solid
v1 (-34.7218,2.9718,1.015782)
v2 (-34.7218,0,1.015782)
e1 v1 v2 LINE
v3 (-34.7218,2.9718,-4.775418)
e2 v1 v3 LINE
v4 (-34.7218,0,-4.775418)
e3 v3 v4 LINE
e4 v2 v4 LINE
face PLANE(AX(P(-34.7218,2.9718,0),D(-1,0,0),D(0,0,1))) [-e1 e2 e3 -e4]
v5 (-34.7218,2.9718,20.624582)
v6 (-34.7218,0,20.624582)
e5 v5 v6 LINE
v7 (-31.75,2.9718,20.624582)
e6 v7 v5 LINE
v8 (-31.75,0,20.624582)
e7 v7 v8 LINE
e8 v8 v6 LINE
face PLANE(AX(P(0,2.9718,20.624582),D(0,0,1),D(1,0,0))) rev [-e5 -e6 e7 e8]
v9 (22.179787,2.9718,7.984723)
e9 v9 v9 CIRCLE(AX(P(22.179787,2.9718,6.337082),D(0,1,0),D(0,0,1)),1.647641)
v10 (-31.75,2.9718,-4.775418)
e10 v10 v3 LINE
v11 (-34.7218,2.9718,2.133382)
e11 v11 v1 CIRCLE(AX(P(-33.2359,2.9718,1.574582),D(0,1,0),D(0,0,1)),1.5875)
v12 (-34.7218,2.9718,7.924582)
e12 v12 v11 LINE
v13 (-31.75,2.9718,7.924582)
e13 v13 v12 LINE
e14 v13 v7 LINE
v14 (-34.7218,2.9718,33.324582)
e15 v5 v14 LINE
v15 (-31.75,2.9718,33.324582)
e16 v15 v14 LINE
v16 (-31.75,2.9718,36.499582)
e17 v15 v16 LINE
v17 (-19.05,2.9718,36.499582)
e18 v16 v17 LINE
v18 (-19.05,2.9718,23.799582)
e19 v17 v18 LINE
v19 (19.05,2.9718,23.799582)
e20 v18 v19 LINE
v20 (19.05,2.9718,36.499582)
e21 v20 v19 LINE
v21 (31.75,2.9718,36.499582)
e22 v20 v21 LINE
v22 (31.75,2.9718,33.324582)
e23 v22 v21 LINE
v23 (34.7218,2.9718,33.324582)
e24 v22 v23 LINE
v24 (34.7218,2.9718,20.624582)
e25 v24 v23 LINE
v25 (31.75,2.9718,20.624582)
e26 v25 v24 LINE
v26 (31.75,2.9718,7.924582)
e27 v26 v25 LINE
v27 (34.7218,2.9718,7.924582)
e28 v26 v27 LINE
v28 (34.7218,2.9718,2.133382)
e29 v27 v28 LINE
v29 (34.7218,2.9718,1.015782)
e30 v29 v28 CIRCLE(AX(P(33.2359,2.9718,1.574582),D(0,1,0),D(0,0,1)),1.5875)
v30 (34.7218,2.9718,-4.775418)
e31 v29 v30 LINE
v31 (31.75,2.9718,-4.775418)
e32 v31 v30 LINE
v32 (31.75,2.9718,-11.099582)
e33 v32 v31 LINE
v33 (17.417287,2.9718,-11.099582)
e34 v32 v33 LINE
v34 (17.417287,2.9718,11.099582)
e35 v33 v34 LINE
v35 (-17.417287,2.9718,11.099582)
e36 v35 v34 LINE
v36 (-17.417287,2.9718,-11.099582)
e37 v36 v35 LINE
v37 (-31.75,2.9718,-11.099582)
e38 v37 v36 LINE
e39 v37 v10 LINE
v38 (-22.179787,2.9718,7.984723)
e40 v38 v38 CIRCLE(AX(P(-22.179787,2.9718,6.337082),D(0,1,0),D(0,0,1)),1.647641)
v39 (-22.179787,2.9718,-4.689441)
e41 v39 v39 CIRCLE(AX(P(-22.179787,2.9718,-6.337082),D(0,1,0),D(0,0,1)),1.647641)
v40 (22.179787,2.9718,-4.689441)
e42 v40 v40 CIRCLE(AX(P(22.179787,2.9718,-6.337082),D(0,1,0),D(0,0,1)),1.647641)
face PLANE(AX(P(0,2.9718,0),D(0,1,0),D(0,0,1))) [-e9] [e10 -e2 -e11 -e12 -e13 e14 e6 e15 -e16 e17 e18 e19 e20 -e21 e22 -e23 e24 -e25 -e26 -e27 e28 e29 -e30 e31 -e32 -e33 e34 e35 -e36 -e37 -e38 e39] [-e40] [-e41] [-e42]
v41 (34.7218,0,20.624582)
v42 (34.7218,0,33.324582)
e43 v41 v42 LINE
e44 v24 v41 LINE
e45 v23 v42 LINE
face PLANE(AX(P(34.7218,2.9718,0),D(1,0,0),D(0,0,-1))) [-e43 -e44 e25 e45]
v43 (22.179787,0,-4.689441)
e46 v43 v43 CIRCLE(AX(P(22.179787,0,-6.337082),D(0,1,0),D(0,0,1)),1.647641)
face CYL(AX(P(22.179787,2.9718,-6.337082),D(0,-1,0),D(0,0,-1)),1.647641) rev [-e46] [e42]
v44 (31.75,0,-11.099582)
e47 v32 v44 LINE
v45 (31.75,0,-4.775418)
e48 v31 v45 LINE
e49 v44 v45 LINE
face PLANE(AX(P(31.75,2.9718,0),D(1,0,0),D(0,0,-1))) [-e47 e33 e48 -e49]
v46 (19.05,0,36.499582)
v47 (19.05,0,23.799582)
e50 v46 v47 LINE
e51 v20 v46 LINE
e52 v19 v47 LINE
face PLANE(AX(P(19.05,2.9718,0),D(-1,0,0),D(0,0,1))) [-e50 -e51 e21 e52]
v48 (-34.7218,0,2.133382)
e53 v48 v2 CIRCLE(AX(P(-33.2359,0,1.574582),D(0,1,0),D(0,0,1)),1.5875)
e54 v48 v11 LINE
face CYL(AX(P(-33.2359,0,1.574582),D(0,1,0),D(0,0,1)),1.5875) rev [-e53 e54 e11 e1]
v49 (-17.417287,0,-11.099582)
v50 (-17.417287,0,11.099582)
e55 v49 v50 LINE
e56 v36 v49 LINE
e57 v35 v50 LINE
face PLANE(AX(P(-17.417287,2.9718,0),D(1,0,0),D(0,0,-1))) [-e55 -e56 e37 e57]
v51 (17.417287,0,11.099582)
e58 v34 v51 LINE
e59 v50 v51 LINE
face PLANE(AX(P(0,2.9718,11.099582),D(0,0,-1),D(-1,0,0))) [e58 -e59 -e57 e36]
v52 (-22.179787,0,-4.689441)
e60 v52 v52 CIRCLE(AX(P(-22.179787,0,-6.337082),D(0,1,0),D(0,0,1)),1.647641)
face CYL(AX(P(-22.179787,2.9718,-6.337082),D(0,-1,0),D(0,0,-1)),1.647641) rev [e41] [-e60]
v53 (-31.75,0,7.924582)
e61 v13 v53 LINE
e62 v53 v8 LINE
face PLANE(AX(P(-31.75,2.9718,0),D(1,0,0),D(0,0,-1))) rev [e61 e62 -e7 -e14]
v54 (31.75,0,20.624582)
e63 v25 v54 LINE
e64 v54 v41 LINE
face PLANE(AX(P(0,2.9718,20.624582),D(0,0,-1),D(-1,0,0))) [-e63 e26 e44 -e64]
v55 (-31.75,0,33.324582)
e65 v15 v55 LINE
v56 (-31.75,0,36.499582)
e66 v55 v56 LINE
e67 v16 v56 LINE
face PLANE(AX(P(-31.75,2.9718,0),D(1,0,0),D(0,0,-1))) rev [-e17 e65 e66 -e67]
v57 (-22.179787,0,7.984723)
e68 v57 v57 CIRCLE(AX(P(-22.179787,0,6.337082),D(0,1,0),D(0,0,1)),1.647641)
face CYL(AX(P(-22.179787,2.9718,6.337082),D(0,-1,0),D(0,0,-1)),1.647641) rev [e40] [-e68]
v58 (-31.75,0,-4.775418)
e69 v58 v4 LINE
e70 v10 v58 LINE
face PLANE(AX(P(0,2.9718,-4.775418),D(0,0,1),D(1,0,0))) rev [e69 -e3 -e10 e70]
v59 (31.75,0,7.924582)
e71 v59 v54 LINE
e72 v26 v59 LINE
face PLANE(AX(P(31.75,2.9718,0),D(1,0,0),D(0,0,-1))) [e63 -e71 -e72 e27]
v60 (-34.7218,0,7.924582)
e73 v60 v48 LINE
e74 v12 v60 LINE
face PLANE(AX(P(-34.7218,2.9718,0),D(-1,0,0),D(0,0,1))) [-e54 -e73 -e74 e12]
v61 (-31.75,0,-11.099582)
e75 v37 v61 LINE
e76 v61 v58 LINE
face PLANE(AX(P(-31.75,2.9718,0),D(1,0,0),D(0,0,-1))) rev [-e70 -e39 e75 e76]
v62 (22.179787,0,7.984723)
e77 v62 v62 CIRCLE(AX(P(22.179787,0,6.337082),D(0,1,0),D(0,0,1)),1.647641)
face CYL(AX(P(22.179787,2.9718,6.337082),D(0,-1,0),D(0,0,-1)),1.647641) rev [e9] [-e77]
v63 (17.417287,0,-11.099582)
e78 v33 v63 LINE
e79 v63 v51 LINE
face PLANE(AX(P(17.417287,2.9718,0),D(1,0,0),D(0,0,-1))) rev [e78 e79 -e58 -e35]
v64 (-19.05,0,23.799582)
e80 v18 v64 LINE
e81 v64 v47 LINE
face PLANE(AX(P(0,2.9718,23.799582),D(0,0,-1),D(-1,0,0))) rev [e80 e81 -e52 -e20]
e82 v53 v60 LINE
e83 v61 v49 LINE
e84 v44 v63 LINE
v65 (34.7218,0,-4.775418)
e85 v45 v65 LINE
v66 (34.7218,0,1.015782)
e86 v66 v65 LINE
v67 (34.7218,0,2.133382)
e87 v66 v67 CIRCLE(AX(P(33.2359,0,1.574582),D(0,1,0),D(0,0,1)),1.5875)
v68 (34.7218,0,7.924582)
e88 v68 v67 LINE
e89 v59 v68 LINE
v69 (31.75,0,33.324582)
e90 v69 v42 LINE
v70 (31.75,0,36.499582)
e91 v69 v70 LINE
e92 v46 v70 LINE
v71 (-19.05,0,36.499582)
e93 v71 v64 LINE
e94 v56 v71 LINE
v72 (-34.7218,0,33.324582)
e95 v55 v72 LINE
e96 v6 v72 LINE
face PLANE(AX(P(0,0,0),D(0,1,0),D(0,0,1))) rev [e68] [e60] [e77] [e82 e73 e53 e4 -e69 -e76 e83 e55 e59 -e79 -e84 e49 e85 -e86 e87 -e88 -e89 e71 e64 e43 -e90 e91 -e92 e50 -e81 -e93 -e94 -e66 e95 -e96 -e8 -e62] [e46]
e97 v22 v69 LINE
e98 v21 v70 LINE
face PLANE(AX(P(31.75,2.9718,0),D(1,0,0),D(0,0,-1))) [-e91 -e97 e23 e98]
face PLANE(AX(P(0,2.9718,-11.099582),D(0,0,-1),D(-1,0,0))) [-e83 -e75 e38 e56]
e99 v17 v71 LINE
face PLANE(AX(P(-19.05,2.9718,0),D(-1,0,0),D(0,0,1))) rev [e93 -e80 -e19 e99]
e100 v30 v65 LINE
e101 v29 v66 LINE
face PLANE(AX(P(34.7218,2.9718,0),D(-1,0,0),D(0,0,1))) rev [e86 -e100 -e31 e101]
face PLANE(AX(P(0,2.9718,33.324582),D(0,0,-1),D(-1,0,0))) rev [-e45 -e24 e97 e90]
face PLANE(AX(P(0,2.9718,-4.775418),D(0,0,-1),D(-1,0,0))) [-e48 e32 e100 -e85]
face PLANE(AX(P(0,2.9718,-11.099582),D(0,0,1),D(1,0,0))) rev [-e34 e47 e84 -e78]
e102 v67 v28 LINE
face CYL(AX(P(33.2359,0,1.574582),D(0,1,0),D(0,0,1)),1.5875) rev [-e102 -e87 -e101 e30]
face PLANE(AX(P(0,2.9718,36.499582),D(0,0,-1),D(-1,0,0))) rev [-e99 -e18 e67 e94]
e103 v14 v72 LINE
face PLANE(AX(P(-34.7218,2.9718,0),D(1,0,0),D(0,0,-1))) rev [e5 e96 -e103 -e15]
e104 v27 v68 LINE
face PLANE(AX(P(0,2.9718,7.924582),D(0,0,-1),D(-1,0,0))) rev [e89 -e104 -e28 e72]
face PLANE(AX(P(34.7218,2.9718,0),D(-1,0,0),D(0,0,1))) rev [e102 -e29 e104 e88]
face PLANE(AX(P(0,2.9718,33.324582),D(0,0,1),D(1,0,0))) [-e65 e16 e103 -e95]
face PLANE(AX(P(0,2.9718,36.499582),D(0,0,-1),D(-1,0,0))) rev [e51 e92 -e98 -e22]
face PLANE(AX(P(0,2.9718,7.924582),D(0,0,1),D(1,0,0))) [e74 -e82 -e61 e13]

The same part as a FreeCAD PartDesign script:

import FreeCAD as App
import Part
import Sketcher
from FreeCAD import Vector
Q = App.Units.Quantity


def add_polygon(sketch, points):
    """Adds a closed chain of lines whose ends are joined by coincident constraints."""
    first, n = sketch.GeometryCount, len(points)
    for a, b in zip(points, points[1:] + points[:1]):
        sketch.addGeometry(Part.LineSegment(App.Vector(*a, 0), App.Vector(*b, 0)), False)
    for i in range(n):
        sketch.addConstraint(Sketcher.Constraint("Coincident", first + i, 2, first + (i + 1) % n, 1))

doc = App.newDocument("Part")
body = doc.addObject("PartDesign::Body", "Body")

sketch1 = body.newObject("Sketcher::SketchObject", "Sketch")
sketch1.AttachmentSupport = (doc.getObject("XZ_Plane"), [""])
sketch1.MapMode = "FlatFace"
add_polygon(sketch1, [(-17.4, -11.1), (-31.8, -11.1), (-31.8, -4.8), (-34.7, -4.8), (-34.7, 7.9), (-31.8, 7.9), (-31.8, 20.6), (-34.7, 20.6), (-34.7, 33.3), (-31.8, 33.3), (-31.8, 36.5), (-19.1, 36.5), (-19.1, 23.8), (19.1, 23.8), (19.1, 36.5), (31.8, 36.5), (31.8, 33.3), (34.7, 33.3), (34.7, 20.6), (31.8, 20.6), (31.8, 7.9), (34.7, 7.9), (34.7, -4.8), (31.8, -4.8), (31.8, -11.1), (17.4, -11.1), (17.4, 11.1), (-17.4, 11.1)])
sketch1.addGeometry(Part.Circle(Vector(-22.2, 6.3, 0), Vector(0, 0, 1), 1.6), False)
sketch1.addGeometry(Part.Circle(Vector(22.2, 6.3, 0), Vector(0, 0, 1), 1.6), False)
sketch1.addGeometry(Part.Circle(Vector(-22.2, -6.3, 0), Vector(0, 0, 1), 1.6), False)
sketch1.addGeometry(Part.Circle(Vector(22.2, -6.3, 0), Vector(0, 0, 1), 1.6), False)
sketch1.addConstraint([
    Sketcher.Constraint("Horizontal", 0),
    Sketcher.Constraint("Vertical", 1),
    Sketcher.Constraint("Horizontal", 2),
    Sketcher.Constraint("Vertical", 3),
    Sketcher.Constraint("Horizontal", 4),
    Sketcher.Constraint("Vertical", 5),
    Sketcher.Constraint("Horizontal", 6),
    Sketcher.Constraint("Vertical", 7),
    Sketcher.Constraint("Horizontal", 8),
    Sketcher.Constraint("Vertical", 9),
    Sketcher.Constraint("Horizontal", 10),
    Sketcher.Constraint("Vertical", 11),
    Sketcher.Constraint("Horizontal", 12),
    Sketcher.Constraint("Vertical", 13),
    Sketcher.Constraint("Horizontal", 14),
    Sketcher.Constraint("Vertical", 15),
    Sketcher.Constraint("Horizontal", 16),
    Sketcher.Constraint("Vertical", 17),
    Sketcher.Constraint("Horizontal", 18),
    Sketcher.Constraint("Vertical", 19),
    Sketcher.Constraint("Horizontal", 20),
    Sketcher.Constraint("Vertical", 21),
    Sketcher.Constraint("Horizontal", 22),
    Sketcher.Constraint("Vertical", 23),
    Sketcher.Constraint("Horizontal", 24),
    Sketcher.Constraint("Vertical", 25),
    Sketcher.Constraint("Horizontal", 26),
    Sketcher.Constraint("Vertical", 27),
    Sketcher.Constraint("Equal", 28, 29),
    Sketcher.Constraint("Equal", 29, 30),
    Sketcher.Constraint("Equal", 30, 31),
    Sketcher.Constraint("Symmetric", 29, 3, 30, 3, -1, 1),
    Sketcher.Constraint("Symmetric", 28, 3, 31, 3, -1, 1),
    Sketcher.Constraint("Symmetric", 24, 2, 26, 2, -1, 1),
    Sketcher.Constraint("Symmetric", 28, 3, 29, 3, -2),
    Sketcher.Constraint("Symmetric", 10, 2, 13, 2, -2),
    Sketcher.Constraint("Symmetric", 8, 2, 15, 2, -2),
    Sketcher.Constraint("Symmetric", 6, 2, 17, 2, -2),
    Sketcher.Constraint("Symmetric", 4, 2, 19, 2, -2),
    Sketcher.Constraint("Symmetric", 2, 2, 21, 2, -2),
    Sketcher.Constraint("Symmetric", 0, 2, 23, 2, -2),
    Sketcher.Constraint("Vertical", 1, 2, 4, 2),
    Sketcher.Constraint("Vertical", 3, 2, 6, 2),
    Sketcher.Constraint("Vertical", 5, 2, 8, 2),
    Sketcher.Constraint("Equal", 14, 3),
    Sketcher.Constraint("Equal", 3, 5),
    Sketcher.Constraint("Equal", 5, 7),
    Sketcher.Constraint("Equal", 7, 11),
    Sketcher.Constraint("DistanceX", 10, 1, 10, 2, Q("0.5 in")),
    Sketcher.Constraint("DistanceX", 12, 1, 12, 2, Q("1.5 in")),
    Sketcher.Constraint("DistanceY", 25, 2, 12, 2, Q("0.5 in")),
    Sketcher.Constraint("DistanceX", 2, 2, 2, 1, Q("0.117 in")),
    Sketcher.Constraint("DistanceY", 9, 1, 9, 2, Q("0.125 in")),
    Sketcher.Constraint("DistanceY", 0, 2, 30, 3, Q("0.1875 in")),
    Sketcher.Constraint("DistanceX", 24, 2, 31, 3, Q("0.1875 in")),
    Sketcher.Constraint("Diameter", 28, 3.295283),
    Sketcher.Constraint("DistanceX", 0, 2, 0, 1, 14.332713),
    Sketcher.Constraint("DistanceY", 1, 1, 1, 2, 6.324164),
])
pad1 = body.newObject("PartDesign::Pad", "Pad")
pad1.Profile = sketch1
pad1.Length = Q("0.117 in")
pad1.Reversed = True

sketch2 = body.newObject("Sketcher::SketchObject", "Sketch001")
sketch2.AttachmentSupport = (doc.getObject("XZ_Plane"), [""])
sketch2.MapMode = "FlatFace"
sketch2.AttachmentOffset = App.Placement(Vector(0, 0, -0.117 * 25.4), App.Rotation())
sketch2.addGeometry([
    Part.Circle(Vector(-33.2, 1.6, 0), Vector(0, 0, 1), 1.6),
    Part.Circle(Vector(33.2, 1.6, 0), Vector(0, 0, 1), 1.6),
], False)
sketch2.addConstraint([
    Sketcher.Constraint("Equal", 0, 1),
    Sketcher.Constraint("Symmetric", 0, 3, 1, 3, -2),
    Sketcher.Constraint("Diameter", 0, Q("0.125 in")),
    Sketcher.Constraint("DistanceX", 0, 3, 1, 3, Q("2.617 in")),
    Sketcher.Constraint("DistanceY", -1, 1, 0, 3, 1.574582),
])
pocket1 = body.newObject("PartDesign::Pocket", "Pocket")
pocket1.Profile = sketch2
pocket1.Type = "ThroughAll"
pocket1.Reversed = True

doc.recompute()
